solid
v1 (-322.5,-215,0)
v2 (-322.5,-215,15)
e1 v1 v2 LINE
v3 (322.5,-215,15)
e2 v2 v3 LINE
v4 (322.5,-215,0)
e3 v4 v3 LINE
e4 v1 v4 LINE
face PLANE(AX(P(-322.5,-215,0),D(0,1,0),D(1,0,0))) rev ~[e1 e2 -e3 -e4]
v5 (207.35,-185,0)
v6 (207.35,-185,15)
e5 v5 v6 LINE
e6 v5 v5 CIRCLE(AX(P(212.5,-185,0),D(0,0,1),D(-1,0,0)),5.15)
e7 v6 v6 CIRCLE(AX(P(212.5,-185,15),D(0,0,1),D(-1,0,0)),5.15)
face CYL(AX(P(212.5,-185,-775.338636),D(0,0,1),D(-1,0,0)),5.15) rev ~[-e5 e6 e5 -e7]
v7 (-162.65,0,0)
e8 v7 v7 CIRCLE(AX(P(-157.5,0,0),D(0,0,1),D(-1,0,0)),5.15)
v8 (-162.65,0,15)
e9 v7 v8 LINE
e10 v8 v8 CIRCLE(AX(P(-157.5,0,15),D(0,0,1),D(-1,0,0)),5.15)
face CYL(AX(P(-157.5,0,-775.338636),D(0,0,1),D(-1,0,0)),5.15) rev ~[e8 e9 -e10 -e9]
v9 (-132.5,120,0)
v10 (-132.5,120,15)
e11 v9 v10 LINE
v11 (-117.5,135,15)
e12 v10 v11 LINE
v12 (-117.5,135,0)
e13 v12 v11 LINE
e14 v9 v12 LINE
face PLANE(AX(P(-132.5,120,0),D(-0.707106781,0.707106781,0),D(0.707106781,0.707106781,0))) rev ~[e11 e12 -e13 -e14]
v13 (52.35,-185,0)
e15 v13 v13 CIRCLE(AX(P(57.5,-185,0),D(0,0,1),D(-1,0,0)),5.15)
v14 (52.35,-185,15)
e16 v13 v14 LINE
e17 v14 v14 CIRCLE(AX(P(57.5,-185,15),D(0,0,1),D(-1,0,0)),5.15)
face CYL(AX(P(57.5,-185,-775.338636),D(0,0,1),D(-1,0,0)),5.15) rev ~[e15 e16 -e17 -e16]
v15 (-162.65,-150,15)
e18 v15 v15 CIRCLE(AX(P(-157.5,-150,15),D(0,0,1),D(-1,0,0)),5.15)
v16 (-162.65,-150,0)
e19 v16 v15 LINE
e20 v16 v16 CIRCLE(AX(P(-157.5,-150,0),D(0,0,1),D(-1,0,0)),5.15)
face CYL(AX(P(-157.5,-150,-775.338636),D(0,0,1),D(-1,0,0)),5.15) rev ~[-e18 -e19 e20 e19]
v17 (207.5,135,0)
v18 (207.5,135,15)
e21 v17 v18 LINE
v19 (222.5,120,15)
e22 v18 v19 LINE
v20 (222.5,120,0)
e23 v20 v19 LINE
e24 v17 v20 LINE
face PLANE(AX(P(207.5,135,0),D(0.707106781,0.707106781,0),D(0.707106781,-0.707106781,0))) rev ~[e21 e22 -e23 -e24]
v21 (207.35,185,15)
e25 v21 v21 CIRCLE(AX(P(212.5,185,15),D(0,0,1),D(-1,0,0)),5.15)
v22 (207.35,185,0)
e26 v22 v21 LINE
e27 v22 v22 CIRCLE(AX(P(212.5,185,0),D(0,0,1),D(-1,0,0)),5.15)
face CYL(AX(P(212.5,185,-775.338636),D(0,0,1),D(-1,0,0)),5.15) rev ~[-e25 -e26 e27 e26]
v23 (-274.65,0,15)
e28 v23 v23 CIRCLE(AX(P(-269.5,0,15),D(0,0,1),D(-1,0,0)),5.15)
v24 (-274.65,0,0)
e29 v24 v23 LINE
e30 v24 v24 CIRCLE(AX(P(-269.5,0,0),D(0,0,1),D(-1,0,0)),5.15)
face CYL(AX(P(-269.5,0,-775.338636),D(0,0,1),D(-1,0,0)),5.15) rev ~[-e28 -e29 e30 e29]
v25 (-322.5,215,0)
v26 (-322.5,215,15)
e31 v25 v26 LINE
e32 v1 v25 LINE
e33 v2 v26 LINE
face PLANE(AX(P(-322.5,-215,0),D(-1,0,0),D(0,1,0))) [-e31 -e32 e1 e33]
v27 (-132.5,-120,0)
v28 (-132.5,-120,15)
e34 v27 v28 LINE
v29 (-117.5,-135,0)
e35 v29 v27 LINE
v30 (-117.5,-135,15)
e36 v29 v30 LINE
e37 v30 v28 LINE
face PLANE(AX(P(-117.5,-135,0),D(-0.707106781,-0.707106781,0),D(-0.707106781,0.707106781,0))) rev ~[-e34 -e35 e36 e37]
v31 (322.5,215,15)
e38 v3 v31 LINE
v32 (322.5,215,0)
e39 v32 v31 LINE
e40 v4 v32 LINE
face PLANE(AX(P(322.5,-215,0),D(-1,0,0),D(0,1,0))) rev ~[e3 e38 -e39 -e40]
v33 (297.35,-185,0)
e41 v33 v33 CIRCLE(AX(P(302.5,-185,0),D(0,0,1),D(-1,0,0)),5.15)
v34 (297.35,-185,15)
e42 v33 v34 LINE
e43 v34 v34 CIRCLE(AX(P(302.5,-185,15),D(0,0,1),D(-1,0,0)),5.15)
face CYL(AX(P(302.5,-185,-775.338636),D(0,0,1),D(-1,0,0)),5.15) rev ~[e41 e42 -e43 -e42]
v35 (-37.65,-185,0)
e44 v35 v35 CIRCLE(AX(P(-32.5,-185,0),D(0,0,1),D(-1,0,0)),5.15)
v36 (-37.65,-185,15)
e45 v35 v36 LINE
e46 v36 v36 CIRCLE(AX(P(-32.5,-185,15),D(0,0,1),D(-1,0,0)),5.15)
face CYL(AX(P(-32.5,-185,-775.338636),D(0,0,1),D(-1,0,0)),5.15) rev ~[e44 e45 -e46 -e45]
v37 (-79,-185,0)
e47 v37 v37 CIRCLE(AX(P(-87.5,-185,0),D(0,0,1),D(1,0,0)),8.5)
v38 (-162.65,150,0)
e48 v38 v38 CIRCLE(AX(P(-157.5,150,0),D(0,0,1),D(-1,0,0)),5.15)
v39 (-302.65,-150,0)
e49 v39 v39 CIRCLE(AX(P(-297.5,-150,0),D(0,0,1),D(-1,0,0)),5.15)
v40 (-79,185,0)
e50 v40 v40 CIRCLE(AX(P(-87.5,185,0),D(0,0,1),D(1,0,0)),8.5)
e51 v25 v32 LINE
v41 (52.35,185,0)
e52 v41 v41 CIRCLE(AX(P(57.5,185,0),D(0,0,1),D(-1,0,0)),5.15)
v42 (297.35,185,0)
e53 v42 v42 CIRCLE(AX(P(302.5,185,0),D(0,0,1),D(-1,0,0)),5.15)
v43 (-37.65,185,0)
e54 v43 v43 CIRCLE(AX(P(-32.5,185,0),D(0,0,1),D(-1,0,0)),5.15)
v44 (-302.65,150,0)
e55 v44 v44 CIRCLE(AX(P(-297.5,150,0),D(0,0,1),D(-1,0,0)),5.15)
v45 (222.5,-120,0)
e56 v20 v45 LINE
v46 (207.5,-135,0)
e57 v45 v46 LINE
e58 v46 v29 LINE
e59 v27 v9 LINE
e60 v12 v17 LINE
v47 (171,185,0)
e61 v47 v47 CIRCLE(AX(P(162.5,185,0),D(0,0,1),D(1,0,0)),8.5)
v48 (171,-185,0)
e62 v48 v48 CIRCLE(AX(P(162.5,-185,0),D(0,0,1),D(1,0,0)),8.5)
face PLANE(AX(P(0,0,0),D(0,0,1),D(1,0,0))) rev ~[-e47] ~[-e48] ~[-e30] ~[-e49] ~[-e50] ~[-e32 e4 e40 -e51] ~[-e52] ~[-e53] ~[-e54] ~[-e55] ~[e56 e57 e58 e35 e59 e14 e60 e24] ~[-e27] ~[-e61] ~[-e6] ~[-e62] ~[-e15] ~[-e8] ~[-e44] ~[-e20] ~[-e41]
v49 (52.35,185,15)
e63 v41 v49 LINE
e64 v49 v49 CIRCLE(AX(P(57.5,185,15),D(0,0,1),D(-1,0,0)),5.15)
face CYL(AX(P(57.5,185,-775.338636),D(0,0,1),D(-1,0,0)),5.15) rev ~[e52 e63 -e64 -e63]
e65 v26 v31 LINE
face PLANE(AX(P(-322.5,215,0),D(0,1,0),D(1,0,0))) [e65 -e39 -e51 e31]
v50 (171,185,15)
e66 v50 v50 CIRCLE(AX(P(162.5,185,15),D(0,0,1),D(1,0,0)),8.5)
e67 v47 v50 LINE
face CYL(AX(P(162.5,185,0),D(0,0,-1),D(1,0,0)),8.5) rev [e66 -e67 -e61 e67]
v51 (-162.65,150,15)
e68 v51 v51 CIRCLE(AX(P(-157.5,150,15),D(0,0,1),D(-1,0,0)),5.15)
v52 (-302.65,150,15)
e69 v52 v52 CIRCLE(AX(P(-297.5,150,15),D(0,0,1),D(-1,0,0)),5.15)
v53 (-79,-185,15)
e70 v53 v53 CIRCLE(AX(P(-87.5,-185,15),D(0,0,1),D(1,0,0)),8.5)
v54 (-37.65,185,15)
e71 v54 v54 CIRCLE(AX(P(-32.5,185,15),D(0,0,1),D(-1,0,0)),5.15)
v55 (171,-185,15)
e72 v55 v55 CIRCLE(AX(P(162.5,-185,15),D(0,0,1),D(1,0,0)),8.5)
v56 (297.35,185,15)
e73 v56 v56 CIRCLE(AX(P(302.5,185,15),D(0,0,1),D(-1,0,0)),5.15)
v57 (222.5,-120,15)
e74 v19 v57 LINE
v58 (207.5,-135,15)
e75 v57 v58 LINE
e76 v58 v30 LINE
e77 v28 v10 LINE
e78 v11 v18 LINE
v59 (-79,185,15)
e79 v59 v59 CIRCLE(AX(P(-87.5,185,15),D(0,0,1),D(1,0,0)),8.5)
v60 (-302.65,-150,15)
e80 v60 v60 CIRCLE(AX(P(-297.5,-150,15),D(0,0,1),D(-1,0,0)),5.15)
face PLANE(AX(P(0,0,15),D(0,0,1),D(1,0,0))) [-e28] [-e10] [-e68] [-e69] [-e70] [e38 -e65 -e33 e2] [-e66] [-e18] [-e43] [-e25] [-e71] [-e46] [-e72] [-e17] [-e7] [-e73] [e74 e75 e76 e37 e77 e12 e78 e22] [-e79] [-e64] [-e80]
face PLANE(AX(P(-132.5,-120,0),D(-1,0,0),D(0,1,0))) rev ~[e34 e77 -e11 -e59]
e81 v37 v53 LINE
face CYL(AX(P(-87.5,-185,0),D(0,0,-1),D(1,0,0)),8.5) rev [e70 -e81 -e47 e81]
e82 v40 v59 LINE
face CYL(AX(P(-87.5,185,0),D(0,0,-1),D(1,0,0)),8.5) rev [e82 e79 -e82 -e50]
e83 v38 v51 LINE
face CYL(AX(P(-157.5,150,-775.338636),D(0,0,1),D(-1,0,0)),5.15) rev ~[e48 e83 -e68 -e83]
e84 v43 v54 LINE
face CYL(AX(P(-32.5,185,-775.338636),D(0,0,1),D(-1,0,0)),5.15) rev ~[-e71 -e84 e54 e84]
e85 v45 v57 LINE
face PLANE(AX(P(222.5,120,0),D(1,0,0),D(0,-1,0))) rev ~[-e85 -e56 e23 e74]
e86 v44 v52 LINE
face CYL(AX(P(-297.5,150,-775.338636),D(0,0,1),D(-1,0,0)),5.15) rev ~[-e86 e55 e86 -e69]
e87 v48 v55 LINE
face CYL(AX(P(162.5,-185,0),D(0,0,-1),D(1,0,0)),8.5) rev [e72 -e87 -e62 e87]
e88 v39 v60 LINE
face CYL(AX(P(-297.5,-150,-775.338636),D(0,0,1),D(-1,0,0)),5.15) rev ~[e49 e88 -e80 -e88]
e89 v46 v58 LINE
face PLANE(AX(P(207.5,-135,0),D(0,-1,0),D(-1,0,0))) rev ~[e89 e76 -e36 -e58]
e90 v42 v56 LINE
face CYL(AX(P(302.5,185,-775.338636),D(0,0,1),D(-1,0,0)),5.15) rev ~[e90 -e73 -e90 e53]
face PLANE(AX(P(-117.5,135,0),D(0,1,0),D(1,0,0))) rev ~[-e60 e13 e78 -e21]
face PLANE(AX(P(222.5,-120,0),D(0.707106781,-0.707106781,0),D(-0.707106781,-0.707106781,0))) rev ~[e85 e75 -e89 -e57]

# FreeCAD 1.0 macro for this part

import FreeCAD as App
import Part
import Sketcher

V = App.Vector
Q = App.Units.Quantity


def add_polygon(sketch, points):
    """Adds a closed chain of lines whose ends are joined by coincident constraints."""
    first, n = sketch.GeometryCount, len(points)
    for a, b in zip(points, points[1:] + points[:1]):
        sketch.addGeometry(Part.LineSegment(App.Vector(*a, 0), App.Vector(*b, 0)), False)
    for i in range(n):
        sketch.addConstraint(Sketcher.Constraint("Coincident", first + i, 2, first + (i + 1) % n, 1))

doc = App.newDocument("Part")
params = doc.addObject("Spreadsheet::Sheet", "Params")
for row, (alias, value) in enumerate([
    ("sketch1_width", "645 mm"),
    ("sketch1_width2", "325 mm"),
    ("sketch1_height", "430 mm"),
    ("sketch1_height2", "240 mm"),
    ("pad1_length", "15 mm"),
    ("sketch2_diameter", "10.3 mm"),
    ("hole_diameter", "10.3 mm"),
    ("sketch3_diameter", "17 mm"),
], start=1):
    params.set(f"A{row}", alias)
    params.set(f"B{row}", "=" + value)
    params.setAlias(f"B{row}", alias)

body = doc.addObject("PartDesign::Body", "Body")

# Sketch on XY plane
sketch1 = body.newObject("Sketcher::SketchObject", "Sketch")
sketch1.AttachmentSupport = (doc.getObject("XY_Plane"), [""])
sketch1.MapMode = "FlatFace"
add_polygon(sketch1, [(-322, 215), (-322, -215), (322, -215), (322, 215)])  # lines 0-3
add_polygon(sketch1, [(-132, -120), (-132, 120), (-118, 135), (208, 135), (222, 120), (222, -120), (208, -135), (-118, -135)])  # lines 4-11
sketch1.addConstraint([
    Sketcher.Constraint("Vertical", 0),
    Sketcher.Constraint("Horizontal", 1),
    Sketcher.Constraint("Vertical", 2),
    Sketcher.Constraint("Horizontal", 3),
    Sketcher.Constraint("Vertical", 4),
    Sketcher.Constraint("Horizontal", 6),
    Sketcher.Constraint("Vertical", 8),
    Sketcher.Constraint("Horizontal", 10),
    Sketcher.Constraint("Symmetric", 0, 2, 2, 2, -1, 1),
    Sketcher.Constraint("Symmetric", 6, 2, 9, 2, -1),
    Sketcher.Constraint("Perpendicular", 5, 7),
    Sketcher.Constraint("Perpendicular", 7, 9),
    Sketcher.Constraint("Perpendicular", 9, 11),
    Sketcher.Constraint("Horizontal", 4, 2, 7, 2),
    Sketcher.Constraint("Horizontal", 8, 2, 11, 2),
    Sketcher.Constraint("Vertical", 5, 2, 10, 2),
    Sketcher.Constraint("DistanceX", 1, 1, 1, 2, Q("645 mm")),
    Sketcher.Constraint("DistanceX", 6, 1, 6, 2, Q("325 mm")),
    Sketcher.Constraint("DistanceY", 0, 2, 0, 1, Q("430 mm")),
    Sketcher.Constraint("DistanceY", 4, 1, 4, 2, Q("240 mm")),
    Sketcher.Constraint("DistanceY", -1, 1, 5, 2, Q("135 mm")),
    Sketcher.Constraint("DistanceX", 3, 2, 4, 2, Q("190 mm")),
])
sketch1.setExpression("Constraints[28]", "Params.sketch1_width")
sketch1.setExpression("Constraints[29]", "Params.sketch1_width2")
sketch1.setExpression("Constraints[30]", "Params.sketch1_height")
sketch1.setExpression("Constraints[31]", "Params.sketch1_height2")
pad1 = body.newObject("PartDesign::Pad", "Pad")
pad1.Profile = sketch1
pad1.setExpression("Length", "Params.pad1_length")

# Sketch on XY plane
sketch2 = body.newObject("Sketcher::SketchObject", "Sketch001")
sketch2.AttachmentSupport = (doc.getObject("XY_Plane"), [""])
sketch2.MapMode = "FlatFace"
sketch2.addGeometry([
    Part.Circle(V(-298, 150, 0), V(0, 0, 1), 5),  # 0
    Part.Circle(V(-298, -150, 0), V(0, 0, 1), 5),  # 1
    Part.Circle(V(-158, 150, 0), V(0, 0, 1), 5),  # 2
    Part.Circle(V(-158, 0, 0), V(0, 0, 1), 5),  # 3
    Part.Circle(V(-158, -150, 0), V(0, 0, 1), 5),  # 4
    Part.Circle(V(-32, -185, 0), V(0, 0, 1), 5),  # 5
    Part.Circle(V(58, -185, 0), V(0, 0, 1), 5),  # 6
    Part.Circle(V(212, -185, 0), V(0, 0, 1), 5),  # 7
    Part.Circle(V(302, -185, 0), V(0, 0, 1), 5),  # 8
    Part.Circle(V(302, 185, 0), V(0, 0, 1), 5),  # 9
    Part.Circle(V(212, 185, 0), V(0, 0, 1), 5),  # 10
    Part.Circle(V(58, 185, 0), V(0, 0, 1), 5),  # 11
    Part.Circle(V(-32, 185, 0), V(0, 0, 1), 5),  # 12
    Part.Circle(V(-270, 0, 0), V(0, 0, 1), 5),  # 13
], False)
sketch2.addConstraint([
    Sketcher.Constraint("Equal", 0, 1),
    Sketcher.Constraint("Equal", 1, 2),
    Sketcher.Constraint("Equal", 2, 3),
    Sketcher.Constraint("Equal", 3, 4),
    Sketcher.Constraint("Equal", 4, 5),
    Sketcher.Constraint("Equal", 5, 6),
    Sketcher.Constraint("Equal", 6, 7),
    Sketcher.Constraint("Equal", 7, 8),
    Sketcher.Constraint("Equal", 8, 9),
    Sketcher.Constraint("Equal", 9, 10),
    Sketcher.Constraint("Equal", 10, 11),
    Sketcher.Constraint("Equal", 11, 12),
    Sketcher.Constraint("Equal", 12, 13),
    Sketcher.Constraint("Symmetric", 0, 3, 1, 3, -1),
    Sketcher.Constraint("Symmetric", 2, 3, 4, 3, -1),
    Sketcher.Constraint("Symmetric", 8, 3, 9, 3, -1),
    Sketcher.Constraint("Symmetric", 7, 3, 10, 3, -1),
    Sketcher.Constraint("Symmetric", 6, 3, 11, 3, -1),
    Sketcher.Constraint("Symmetric", 5, 3, 12, 3, -1),
    Sketcher.Constraint("PointOnObject", 3, 3, -1),
    Sketcher.Constraint("PointOnObject", 13, 3, -1),
    Sketcher.Constraint("Horizontal", 0, 3, 2, 3),
    Sketcher.Constraint("Horizontal", 5, 3, 6, 3),
    Sketcher.Constraint("Horizontal", 6, 3, 7, 3),
    Sketcher.Constraint("Horizontal", 7, 3, 8, 3),
    Sketcher.Constraint("Vertical", 2, 3, 3, 3),
    Sketcher.Constraint("Diameter", 0, Q("10.3 mm")),
    Sketcher.Constraint("DistanceY", -1, 1, 0, 3, Q("150 mm")),
    Sketcher.Constraint("DistanceY", 5, 3, -1, 1, Q("185 mm")),
    Sketcher.Constraint("DistanceX", 0, 3, 2, 3, Q("140 mm")),
    Sketcher.Constraint("DistanceX", 4, 3, 5, 3, Q("125 mm")),
    Sketcher.Constraint("DistanceX", 5, 3, 6, 3, Q("90 mm")),
    Sketcher.Constraint("DistanceX", 6, 3, 7, 3, Q("155 mm")),
    Sketcher.Constraint("DistanceX", 7, 3, 8, 3, Q("90 mm")),
    Sketcher.Constraint("DistanceX", 13, 3, 3, 3, Q("112 mm")),
    Sketcher.Constraint("DistanceX", 0, 3, -1, 1, Q("297.5 mm")),
])
sketch2.setExpression("Constraints[26]", "Params.sketch2_diameter")
doc.recompute()
hole = body.newObject("PartDesign::Hole", "Hole")
hole.Profile = sketch2
hole.ThreadType = "None"
hole.setExpression("Diameter", "Params.hole_diameter")
hole.DepthType = "ThroughAll"
hole.Reversed = True

# Sketch on XY plane
sketch3 = body.newObject("Sketcher::SketchObject", "Sketch002")
sketch3.AttachmentSupport = (doc.getObject("XY_Plane"), [""])
sketch3.MapMode = "FlatFace"
sketch3.addGeometry([
    Part.Circle(V(-88, 185, 0), V(0, 0, 1), 8),
    Part.Circle(V(162, 185, 0), V(0, 0, 1), 8),
    Part.Circle(V(162, -185, 0), V(0, 0, 1), 8),
    Part.Circle(V(-88, -185, 0), V(0, 0, 1), 8),
], False)
sketch3.addConstraint([
    Sketcher.Constraint("Equal", 0, 1),
    Sketcher.Constraint("Equal", 1, 2),
    Sketcher.Constraint("Equal", 2, 3),
    Sketcher.Constraint("Symmetric", 1, 3, 2, 3, -1),
    Sketcher.Constraint("Symmetric", 0, 3, 3, 3, -1),
    Sketcher.Constraint("Horizontal", 0, 3, 1, 3),
    Sketcher.Constraint("Diameter", 0, Q("17 mm")),
    Sketcher.Constraint("DistanceY", -1, 1, 0, 3, Q("185 mm")),
    Sketcher.Constraint("DistanceX", 0, 3, 1, 3, Q("250 mm")),
    Sketcher.Constraint("DistanceX", 0, 3, -1, 1, Q("87.5 mm")),
])
sketch3.setExpression("Constraints[6]", "Params.sketch3_diameter")
pocket1 = body.newObject("PartDesign::Pocket", "Pocket")
pocket1.Profile = sketch3
pocket1.Type = "ThroughAll"
pocket1.Reversed = True

doc.recompute()
